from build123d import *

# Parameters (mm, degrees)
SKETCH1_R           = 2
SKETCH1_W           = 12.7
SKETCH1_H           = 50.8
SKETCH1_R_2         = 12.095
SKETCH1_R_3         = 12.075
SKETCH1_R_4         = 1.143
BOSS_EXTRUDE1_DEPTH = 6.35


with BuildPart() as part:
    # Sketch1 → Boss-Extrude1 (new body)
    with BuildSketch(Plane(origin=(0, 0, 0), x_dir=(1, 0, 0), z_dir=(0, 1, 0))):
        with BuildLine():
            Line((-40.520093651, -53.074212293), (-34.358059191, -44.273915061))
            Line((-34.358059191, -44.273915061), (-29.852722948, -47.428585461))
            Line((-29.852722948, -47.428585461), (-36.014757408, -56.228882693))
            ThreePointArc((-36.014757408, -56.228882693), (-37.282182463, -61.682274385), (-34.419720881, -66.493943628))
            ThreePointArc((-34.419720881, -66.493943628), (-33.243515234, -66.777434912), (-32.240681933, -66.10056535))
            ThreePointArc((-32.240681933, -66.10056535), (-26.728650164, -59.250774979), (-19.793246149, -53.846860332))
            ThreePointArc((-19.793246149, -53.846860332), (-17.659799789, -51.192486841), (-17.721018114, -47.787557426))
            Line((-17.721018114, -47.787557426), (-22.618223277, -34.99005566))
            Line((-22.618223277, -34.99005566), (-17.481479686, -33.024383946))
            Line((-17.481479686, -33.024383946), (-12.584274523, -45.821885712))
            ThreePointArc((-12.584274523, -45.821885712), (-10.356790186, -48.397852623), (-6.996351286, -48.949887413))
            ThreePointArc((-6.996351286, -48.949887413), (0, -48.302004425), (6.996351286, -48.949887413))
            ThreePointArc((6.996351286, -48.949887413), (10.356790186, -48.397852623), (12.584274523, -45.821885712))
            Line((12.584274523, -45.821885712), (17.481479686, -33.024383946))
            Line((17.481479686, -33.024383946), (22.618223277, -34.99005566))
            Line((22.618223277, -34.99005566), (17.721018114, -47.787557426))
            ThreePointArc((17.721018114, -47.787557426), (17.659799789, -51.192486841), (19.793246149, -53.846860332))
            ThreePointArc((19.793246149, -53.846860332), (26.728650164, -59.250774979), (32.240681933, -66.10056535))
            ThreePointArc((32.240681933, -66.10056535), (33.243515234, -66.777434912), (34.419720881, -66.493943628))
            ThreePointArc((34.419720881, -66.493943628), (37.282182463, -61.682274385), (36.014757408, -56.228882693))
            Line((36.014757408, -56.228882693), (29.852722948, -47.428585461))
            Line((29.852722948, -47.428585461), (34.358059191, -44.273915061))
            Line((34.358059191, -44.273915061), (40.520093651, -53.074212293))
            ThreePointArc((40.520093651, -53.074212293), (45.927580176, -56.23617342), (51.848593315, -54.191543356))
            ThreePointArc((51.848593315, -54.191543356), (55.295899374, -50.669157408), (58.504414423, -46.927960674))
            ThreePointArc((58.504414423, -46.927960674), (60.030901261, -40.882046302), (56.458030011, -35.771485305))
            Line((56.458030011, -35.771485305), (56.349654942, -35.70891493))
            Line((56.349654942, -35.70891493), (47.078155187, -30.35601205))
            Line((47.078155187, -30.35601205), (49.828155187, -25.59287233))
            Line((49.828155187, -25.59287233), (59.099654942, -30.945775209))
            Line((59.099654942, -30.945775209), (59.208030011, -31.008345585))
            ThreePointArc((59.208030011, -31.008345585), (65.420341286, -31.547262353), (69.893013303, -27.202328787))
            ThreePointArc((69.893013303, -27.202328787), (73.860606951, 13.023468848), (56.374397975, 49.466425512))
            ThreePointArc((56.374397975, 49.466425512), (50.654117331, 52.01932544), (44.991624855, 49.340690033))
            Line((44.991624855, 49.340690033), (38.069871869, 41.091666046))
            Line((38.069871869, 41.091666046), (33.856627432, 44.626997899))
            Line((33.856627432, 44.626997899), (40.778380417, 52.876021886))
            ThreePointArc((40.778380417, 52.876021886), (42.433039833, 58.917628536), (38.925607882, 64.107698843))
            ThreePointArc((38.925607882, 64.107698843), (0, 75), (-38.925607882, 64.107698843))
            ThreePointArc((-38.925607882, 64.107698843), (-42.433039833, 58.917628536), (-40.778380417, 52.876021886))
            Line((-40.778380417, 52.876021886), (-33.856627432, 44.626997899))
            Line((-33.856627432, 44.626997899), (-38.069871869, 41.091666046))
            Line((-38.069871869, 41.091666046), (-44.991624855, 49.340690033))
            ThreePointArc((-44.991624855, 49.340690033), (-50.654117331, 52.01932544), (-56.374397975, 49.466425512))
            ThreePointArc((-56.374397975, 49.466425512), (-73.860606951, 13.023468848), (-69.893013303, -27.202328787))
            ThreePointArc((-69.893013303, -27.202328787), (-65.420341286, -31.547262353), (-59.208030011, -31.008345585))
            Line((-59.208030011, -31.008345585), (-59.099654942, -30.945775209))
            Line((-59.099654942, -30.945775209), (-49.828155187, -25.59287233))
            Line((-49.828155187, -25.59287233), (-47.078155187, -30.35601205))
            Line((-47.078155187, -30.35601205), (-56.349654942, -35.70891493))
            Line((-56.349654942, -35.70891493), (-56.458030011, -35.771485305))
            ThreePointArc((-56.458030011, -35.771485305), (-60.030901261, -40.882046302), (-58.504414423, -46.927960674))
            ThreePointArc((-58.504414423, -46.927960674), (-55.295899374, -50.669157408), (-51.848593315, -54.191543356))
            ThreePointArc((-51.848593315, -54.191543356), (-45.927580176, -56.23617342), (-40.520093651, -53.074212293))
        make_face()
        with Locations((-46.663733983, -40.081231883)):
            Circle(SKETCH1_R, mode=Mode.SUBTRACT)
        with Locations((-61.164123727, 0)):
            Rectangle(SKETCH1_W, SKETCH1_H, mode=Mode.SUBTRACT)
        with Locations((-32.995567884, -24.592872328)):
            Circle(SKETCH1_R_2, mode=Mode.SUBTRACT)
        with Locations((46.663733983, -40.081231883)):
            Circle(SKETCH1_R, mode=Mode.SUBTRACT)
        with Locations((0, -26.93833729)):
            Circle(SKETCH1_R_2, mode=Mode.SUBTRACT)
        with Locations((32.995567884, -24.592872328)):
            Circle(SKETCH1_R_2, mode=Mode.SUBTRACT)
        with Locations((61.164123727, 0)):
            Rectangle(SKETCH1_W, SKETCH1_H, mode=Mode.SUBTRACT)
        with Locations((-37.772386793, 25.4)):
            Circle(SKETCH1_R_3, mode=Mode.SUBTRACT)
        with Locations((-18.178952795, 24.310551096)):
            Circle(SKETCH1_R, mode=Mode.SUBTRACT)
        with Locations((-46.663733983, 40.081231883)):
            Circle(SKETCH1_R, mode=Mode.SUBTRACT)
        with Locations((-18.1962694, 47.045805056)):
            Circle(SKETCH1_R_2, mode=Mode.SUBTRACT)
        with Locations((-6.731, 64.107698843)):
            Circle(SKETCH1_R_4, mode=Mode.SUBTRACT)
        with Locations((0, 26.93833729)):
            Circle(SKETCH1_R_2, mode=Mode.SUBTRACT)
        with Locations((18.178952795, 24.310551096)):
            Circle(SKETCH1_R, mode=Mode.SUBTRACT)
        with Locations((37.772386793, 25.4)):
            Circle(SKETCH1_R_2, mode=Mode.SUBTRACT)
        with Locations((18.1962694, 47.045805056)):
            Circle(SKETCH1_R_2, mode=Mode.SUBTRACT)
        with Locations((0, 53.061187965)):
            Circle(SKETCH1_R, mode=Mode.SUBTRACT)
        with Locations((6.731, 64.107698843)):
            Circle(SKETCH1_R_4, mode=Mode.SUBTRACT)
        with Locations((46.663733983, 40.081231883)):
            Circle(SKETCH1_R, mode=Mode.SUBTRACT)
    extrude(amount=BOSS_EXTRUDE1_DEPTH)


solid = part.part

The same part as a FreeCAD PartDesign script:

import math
import FreeCAD as App
import Part
import Sketcher
from FreeCAD import Vector
Q = App.Units.Quantity

doc = App.newDocument("Part")
body = doc.addObject("PartDesign::Body", "Body")

# Sketch on XZ plane
sketch1 = doc.addObject("Sketcher::SketchObject", "Sketch")
body.addObject(sketch1)
sketch1.AttachmentSupport = (doc.XZ_Plane, [""])
sketch1.MapMode = "FlatFace"
sketch1.addGeometry([
    Part.LineSegment(Vector(-40.52, 53.07, 0), Vector(-34.36, 44.27, 0)),  # 0
    Part.LineSegment(Vector(-34.36, 44.27, 0), Vector(-29.85, 47.43, 0)),  # 1
    Part.LineSegment(Vector(-29.85, 47.43, 0), Vector(-36.01, 56.23, 0)),  # 2
    Part.ArcOfCircle(Part.Circle(Vector(-29.87, 60.53, 0), Vector(0, 0, 1), 7.5), math.radians(127), math.radians(215)),  # 3
    Part.ArcOfCircle(Part.Circle(Vector(-33.51, 65.3, 0), Vector(0, 0, 1), 1.5), math.radians(32), math.radians(127)),  # 4
    Part.ArcOfCircle(Part.Circle(Vector(0, 86.4, 0), Vector(0, 0, 1), 38.1), math.radians(-148), math.radians(-121)),  # 5
    Part.ArcOfCircle(Part.Circle(Vector(-22.39, 49.57, 0), Vector(0, 0, 1), 5), math.radians(-21), math.radians(59)),  # 6
    Part.LineSegment(Vector(-17.72, 47.79, 0), Vector(-22.62, 34.99, 0)),  # 7
    Part.LineSegment(Vector(-22.62, 34.99, 0), Vector(-17.48, 33.02, 0)),  # 8
    Part.LineSegment(Vector(-17.48, 33.02, 0), Vector(-12.58, 45.82, 0)),  # 9
    Part.ArcOfCircle(Part.Circle(Vector(-7.91, 44.03, 0), Vector(0, 0, 1), 5), math.radians(79), math.radians(159)),  # 10
    Part.ArcOfCircle(Part.Circle(Vector(0, 86.4, 0), Vector(0, 0, 1), 38.1), math.radians(-101), math.radians(-79)),  # 11
    Part.ArcOfCircle(Part.Circle(Vector(7.91, 44.03, 0), Vector(0, 0, 1), 5), math.radians(21), math.radians(101)),  # 12
    Part.LineSegment(Vector(12.58, 45.82, 0), Vector(17.48, 33.02, 0)),  # 13
    Part.LineSegment(Vector(17.48, 33.02, 0), Vector(22.62, 34.99, 0)),  # 14
    Part.LineSegment(Vector(22.62, 34.99, 0), Vector(17.72, 47.79, 0)),  # 15
    Part.ArcOfCircle(Part.Circle(Vector(22.39, 49.57, 0), Vector(0, 0, 1), 5), math.radians(121), math.radians(201)),  # 16
    Part.ArcOfCircle(Part.Circle(Vector(0, 86.4, 0), Vector(0, 0, 1), 38.1), math.radians(-59), math.radians(-32)),  # 17
    Part.ArcOfCircle(Part.Circle(Vector(33.51, 65.3, 0), Vector(0, 0, 1), 1.5), math.radians(53), math.radians(148)),  # 18
    Part.ArcOfCircle(Part.Circle(Vector(29.87, 60.53, 0), Vector(0, 0, 1), 7.5), math.radians(-35), math.radians(53)),  # 19
    Part.LineSegment(Vector(36.01, 56.23, 0), Vector(29.85, 47.43, 0)),  # 20
    Part.LineSegment(Vector(29.85, 47.43, 0), Vector(34.36, 44.27, 0)),  # 21
    Part.LineSegment(Vector(34.36, 44.27, 0), Vector(40.52, 53.07, 0)),  # 22
    Part.ArcOfCircle(Part.Circle(Vector(46.66, 48.77, 0), Vector(0, 0, 1), 7.5), math.radians(46), math.radians(145)),  # 23
    Part.ArcOfCircle(Part.Circle(Vector(0, 0, 0), Vector(0, 0, 1), 75), math.radians(38.73), math.radians(46.27)),  # 24
    Part.ArcOfCircle(Part.Circle(Vector(52.65, 42.24, 0), Vector(0, 0, 1), 7.5), math.radians(-60), math.radians(39)),  # 25
    Part.LineSegment(Vector(56.46, 35.77, 0), Vector(56.35, 35.71, 0)),  # 26
    Part.LineSegment(Vector(56.35, 35.71, 0), Vector(47.08, 30.36, 0)),  # 27
    Part.LineSegment(Vector(47.08, 30.36, 0), Vector(49.83, 25.59, 0)),  # 28
    Part.LineSegment(Vector(49.83, 25.59, 0), Vector(59.1, 30.95, 0)),  # 29
    Part.LineSegment(Vector(59.1, 30.95, 0), Vector(59.21, 31.01, 0)),  # 30
    Part.ArcOfCircle(Part.Circle(Vector(62.9, 24.48, 0), Vector(0, 0, 1), 7.5), math.radians(21), math.radians(120)),  # 31
    Part.ArcOfCircle(Part.Circle(Vector(0, 0, 0), Vector(0, 0, 1), 75), math.radians(-41), math.radians(21)),  # 32
    Part.ArcOfCircle(Part.Circle(Vector(50.74, -44.52, 0), Vector(0, 0, 1), 7.5), math.radians(-140), math.radians(-41)),  # 33
    Part.LineSegment(Vector(44.99, -49.34, 0), Vector(38.07, -41.09, 0)),  # 34
    Part.LineSegment(Vector(38.07, -41.09, 0), Vector(33.86, -44.63, 0)),  # 35
    Part.LineSegment(Vector(33.86, -44.63, 0), Vector(40.78, -52.88, 0)),  # 36
    Part.ArcOfCircle(Part.Circle(Vector(35.03, -57.7, 0), Vector(0, 0, 1), 7.5), math.radians(-59), math.radians(40)),  # 37
    Part.ArcOfCircle(Part.Circle(Vector(0, 0, 0), Vector(0, 0, 1), 75), math.radians(-121), math.radians(-59)),  # 38
    Part.ArcOfCircle(Part.Circle(Vector(-35.03, -57.7, 0), Vector(0, 0, 1), 7.5), math.radians(140), math.radians(239)),  # 39
    Part.LineSegment(Vector(-40.78, -52.88, 0), Vector(-33.86, -44.63, 0)),  # 40
    Part.LineSegment(Vector(-33.86, -44.63, 0), Vector(-38.07, -41.09, 0)),  # 41
    Part.LineSegment(Vector(-38.07, -41.09, 0), Vector(-44.99, -49.34, 0)),  # 42
    Part.ArcOfCircle(Part.Circle(Vector(-50.74, -44.52, 0), Vector(0, 0, 1), 7.5), math.radians(-139), math.radians(-40)),  # 43
    Part.ArcOfCircle(Part.Circle(Vector(0, 0, 0), Vector(0, 0, 1), 75), math.radians(159), math.radians(221)),  # 44
    Part.ArcOfCircle(Part.Circle(Vector(-62.9, 24.48, 0), Vector(0, 0, 1), 7.5), math.radians(60), math.radians(159)),  # 45
    Part.LineSegment(Vector(-59.21, 31.01, 0), Vector(-59.1, 30.95, 0)),  # 46
    Part.LineSegment(Vector(-59.1, 30.95, 0), Vector(-49.83, 25.59, 0)),  # 47
    Part.LineSegment(Vector(-49.83, 25.59, 0), Vector(-47.08, 30.36, 0)),  # 48
    Part.LineSegment(Vector(-47.08, 30.36, 0), Vector(-56.35, 35.71, 0)),  # 49
    Part.LineSegment(Vector(-56.35, 35.71, 0), Vector(-56.46, 35.77, 0)),  # 50
    Part.ArcOfCircle(Part.Circle(Vector(-52.65, 42.24, 0), Vector(0, 0, 1), 7.5), math.radians(141), math.radians(240)),  # 51
    Part.ArcOfCircle(Part.Circle(Vector(0, 0, 0), Vector(0, 0, 1), 75), math.radians(133.73), math.radians(141.27)),  # 52
    Part.ArcOfCircle(Part.Circle(Vector(-46.66, 48.77, 0), Vector(0, 0, 1), 7.5), math.radians(35), math.radians(134)),  # 53
    Part.Circle(Vector(-46.66, 40.08, 0), Vector(0, 0, 1), 2),  # 54
    Part.Circle(Vector(-33, 24.59, 0), Vector(0, 0, 1), 12.1),  # 55
    Part.LineSegment(Vector(-54.81, 25.4, 0), Vector(-67.51, 25.4, 0)),  # 56
    Part.LineSegment(Vector(-67.51, 25.4, 0), Vector(-67.51, -25.4, 0)),  # 57
    Part.LineSegment(Vector(-67.51, -25.4, 0), Vector(-54.81, -25.4, 0)),  # 58
    Part.LineSegment(Vector(-54.81, -25.4, 0), Vector(-54.81, 25.4, 0)),  # 59
    Part.Circle(Vector(0, 26.94, 0), Vector(0, 0, 1), 12.1),  # 60
    Part.Circle(Vector(33, 24.59, 0), Vector(0, 0, 1), 12.1),  # 61
    Part.Circle(Vector(46.66, 40.08, 0), Vector(0, 0, 1), 2),  # 62
    Part.LineSegment(Vector(67.51, 25.4, 0), Vector(54.81, 25.4, 0)),  # 63
    Part.LineSegment(Vector(54.81, 25.4, 0), Vector(54.81, -25.4, 0)),  # 64
    Part.LineSegment(Vector(54.81, -25.4, 0), Vector(67.51, -25.4, 0)),  # 65
    Part.LineSegment(Vector(67.51, -25.4, 0), Vector(67.51, 25.4, 0)),  # 66
    Part.Circle(Vector(-37.77, -25.4, 0), Vector(0, 0, 1), 12.07),  # 67
    Part.Circle(Vector(-18.18, -24.31, 0), Vector(0, 0, 1), 2),  # 68
    Part.Circle(Vector(-46.66, -40.08, 0), Vector(0, 0, 1), 2),  # 69
    Part.Circle(Vector(-18.2, -47.05, 0), Vector(0, 0, 1), 12.1),  # 70
    Part.Circle(Vector(-6.73, -64.11, 0), Vector(0, 0, 1), 1.14),  # 71
    Part.Circle(Vector(18.18, -24.31, 0), Vector(0, 0, 1), 2),  # 72
    Part.Circle(Vector(0, -26.94, 0), Vector(0, 0, 1), 12.1),  # 73
    Part.Circle(Vector(37.77, -25.4, 0), Vector(0, 0, 1), 12.1),  # 74
    Part.Circle(Vector(18.2, -47.05, 0), Vector(0, 0, 1), 12.1),  # 75
    Part.Circle(Vector(0, -53.06, 0), Vector(0, 0, 1), 2),  # 76
    Part.Circle(Vector(6.73, -64.11, 0), Vector(0, 0, 1), 1.14),  # 77
    Part.Circle(Vector(46.66, -40.08, 0), Vector(0, 0, 1), 2),  # 78
], False)
sketch1.addConstraint([
    Sketcher.Constraint("Coincident", 0, 2, 1, 1),
    Sketcher.Constraint("Coincident", 1, 2, 2, 1),
    Sketcher.Constraint("Tangent", 2, 2, 3, 2),
    Sketcher.Constraint("Tangent", 3, 1, 4, 2),
    Sketcher.Constraint("Tangent", 4, 1, 5, 1),
    Sketcher.Constraint("Tangent", 5, 2, 6, 2),
    Sketcher.Constraint("Tangent", 6, 1, 7, 1),
    Sketcher.Constraint("Coincident", 7, 2, 8, 1),
    Sketcher.Constraint("Coincident", 8, 2, 9, 1),
    Sketcher.Constraint("Tangent", 9, 2, 10, 2),
    Sketcher.Constraint("Tangent", 10, 1, 11, 1),
    Sketcher.Constraint("Tangent", 11, 2, 12, 2),
    Sketcher.Constraint("Tangent", 12, 1, 13, 1),
    Sketcher.Constraint("Coincident", 13, 2, 14, 1),
    Sketcher.Constraint("Coincident", 14, 2, 15, 1),
    Sketcher.Constraint("Tangent", 15, 2, 16, 2),
    Sketcher.Constraint("Tangent", 16, 1, 17, 1),
    Sketcher.Constraint("Tangent", 17, 2, 18, 2),
    Sketcher.Constraint("Tangent", 18, 1, 19, 2),
    Sketcher.Constraint("Tangent", 19, 1, 20, 1),
    Sketcher.Constraint("Coincident", 20, 2, 21, 1),
    Sketcher.Constraint("Coincident", 21, 2, 22, 1),
    Sketcher.Constraint("Tangent", 22, 2, 23, 2),
    Sketcher.Constraint("Tangent", 23, 1, 24, 2),
    Sketcher.Constraint("Tangent", 24, 1, 25, 2),
    Sketcher.Constraint("Coincident", 25, 1, 26, 1),
    Sketcher.Constraint("Coincident", 26, 2, 27, 1),
    Sketcher.Constraint("Coincident", 27, 2, 28, 1),
    Sketcher.Constraint("Coincident", 28, 2, 29, 1),
    Sketcher.Constraint("Coincident", 29, 2, 30, 1),
    Sketcher.Constraint("Coincident", 30, 2, 31, 2),
    Sketcher.Constraint("Tangent", 31, 1, 32, 2),
    Sketcher.Constraint("Tangent", 32, 1, 33, 2),
    Sketcher.Constraint("Tangent", 33, 1, 34, 1),
    Sketcher.Constraint("Coincident", 34, 2, 35, 1),
    Sketcher.Constraint("Coincident", 35, 2, 36, 1),
    Sketcher.Constraint("Tangent", 36, 2, 37, 2),
    Sketcher.Constraint("Tangent", 37, 1, 38, 2),
    Sketcher.Constraint("Tangent", 38, 1, 39, 2),
    Sketcher.Constraint("Tangent", 39, 1, 40, 1),
    Sketcher.Constraint("Coincident", 40, 2, 41, 1),
    Sketcher.Constraint("Coincident", 41, 2, 42, 1),
    Sketcher.Constraint("Tangent", 42, 2, 43, 2),
    Sketcher.Constraint("Tangent", 43, 1, 44, 2),
    Sketcher.Constraint("Tangent", 44, 1, 45, 2),
    Sketcher.Constraint("Coincident", 45, 1, 46, 1),
    Sketcher.Constraint("Coincident", 46, 2, 47, 1),
    Sketcher.Constraint("Coincident", 47, 2, 48, 1),
    Sketcher.Constraint("Coincident", 48, 2, 49, 1),
    Sketcher.Constraint("Coincident", 49, 2, 50, 1),
    Sketcher.Constraint("Coincident", 50, 2, 51, 2),
    Sketcher.Constraint("Tangent", 51, 1, 52, 2),
    Sketcher.Constraint("Tangent", 52, 1, 53, 2),
    Sketcher.Constraint("Tangent", 53, 1, 0, 1),
    Sketcher.Constraint("Coincident", 56, 2, 57, 1),
    Sketcher.Constraint("Coincident", 57, 2, 58, 1),
    Sketcher.Constraint("Coincident", 58, 2, 59, 1),
    Sketcher.Constraint("Coincident", 59, 2, 56, 1),
    Sketcher.Constraint("Coincident", 63, 2, 64, 1),
    Sketcher.Constraint("Coincident", 64, 2, 65, 1),
    Sketcher.Constraint("Coincident", 65, 2, 66, 1),
    Sketcher.Constraint("Coincident", 66, 2, 63, 1),
    Sketcher.Constraint("Horizontal", 56),
    Sketcher.Constraint("Vertical", 57),
    Sketcher.Constraint("Horizontal", 58),
    Sketcher.Constraint("Vertical", 59),
    Sketcher.Constraint("Horizontal", 63),
    Sketcher.Constraint("Vertical", 64),
    Sketcher.Constraint("Horizontal", 65),
    Sketcher.Constraint("Vertical", 66),
    Sketcher.Constraint("Coincident", 24, 3, -1, 1),
    Sketcher.Constraint("Coincident", 32, 3, -1, 1),
    Sketcher.Constraint("Coincident", 38, 3, -1, 1),
    Sketcher.Constraint("Coincident", 44, 3, -1, 1),
    Sketcher.Constraint("Coincident", 52, 3, -1, 1),
    Sketcher.Constraint("Coincident", 11, 3, 5, 3),
    Sketcher.Constraint("Coincident", 17, 3, 5, 3),
    Sketcher.Constraint("Equal", 6, 10),
    Sketcher.Constraint("Equal", 5, 11),
    Sketcher.Constraint("Equal", 10, 12),
    Sketcher.Constraint("Equal", 12, 16),
    Sketcher.Constraint("Equal", 11, 17),
    Sketcher.Constraint("Equal", 4, 18),
    Sketcher.Constraint("Equal", 3, 19),
    Sketcher.Constraint("Equal", 19, 23),
    Sketcher.Constraint("Equal", 23, 25),
    Sketcher.Constraint("Equal", 25, 31),
    Sketcher.Constraint("Equal", 24, 32),
    Sketcher.Constraint("Equal", 31, 33),
    Sketcher.Constraint("Equal", 33, 37),
    Sketcher.Constraint("Equal", 32, 38),
    Sketcher.Constraint("Equal", 37, 39),
    Sketcher.Constraint("Equal", 39, 43),
    Sketcher.Constraint("Equal", 38, 44),
    Sketcher.Constraint("Equal", 43, 45),
    Sketcher.Constraint("Equal", 45, 51),
    Sketcher.Constraint("Equal", 44, 52),
    Sketcher.Constraint("Equal", 51, 53),
    Sketcher.Constraint("Equal", 55, 60),
    Sketcher.Constraint("Equal", 60, 61),
    Sketcher.Constraint("Equal", 54, 62),
    Sketcher.Constraint("Equal", 62, 68),
    Sketcher.Constraint("Equal", 68, 69),
    Sketcher.Constraint("Equal", 61, 70),
    Sketcher.Constraint("Equal", 69, 72),
    Sketcher.Constraint("Equal", 70, 73),
    Sketcher.Constraint("Equal", 73, 74),
    Sketcher.Constraint("Equal", 74, 75),
    Sketcher.Constraint("Equal", 72, 76),
    Sketcher.Constraint("Equal", 71, 77),
    Sketcher.Constraint("Equal", 76, 78),
    Sketcher.Constraint("Symmetric", 62, 3, 69, 3, -1, 1),
    Sketcher.Constraint("Symmetric", 60, 3, 73, 3, -1, 1),
    Sketcher.Constraint("Symmetric", 54, 3, 78, 3, -1, 1),
    Sketcher.Constraint("Symmetric", 58, 2, 63, 2, -1, 1),
    Sketcher.Constraint("Symmetric", 56, 2, 65, 2, -1, 1),
    Sketcher.Constraint("Symmetric", 10, 3, 12, 3, -2),
    Sketcher.Constraint("Symmetric", 3, 3, 19, 3, -2),
    Sketcher.Constraint("Symmetric", 55, 3, 61, 3, -2),
    Sketcher.Constraint("Symmetric", 54, 3, 62, 3, -2),
    Sketcher.Constraint("Symmetric", 68, 3, 72, 3, -2),
    Sketcher.Constraint("Symmetric", 67, 3, 74, 3, -2),
    Sketcher.Constraint("Symmetric", 70, 3, 75, 3, -2),
    Sketcher.Constraint("Symmetric", 71, 3, 77, 3, -2),
    Sketcher.Constraint("Symmetric", 8, 2, 13, 2, -2),
    Sketcher.Constraint("Symmetric", 7, 2, 14, 2, -2),
    Sketcher.Constraint("Symmetric", 1, 2, 20, 2, -2),
    Sketcher.Constraint("Symmetric", 0, 2, 21, 2, -2),
    Sketcher.Constraint("Symmetric", 36, 2, 39, 1, -2),
    Sketcher.Constraint("Symmetric", 34, 2, 41, 2, -2),
    Sketcher.Constraint("Symmetric", 30, 2, 45, 1, -2),
    Sketcher.Constraint("Symmetric", 29, 2, 46, 2, -2),
    Sketcher.Constraint("Symmetric", 28, 2, 47, 2, -2),
    Sketcher.Constraint("Symmetric", 27, 2, 48, 2, -2),
    Sketcher.Constraint("Symmetric", 26, 2, 49, 2, -2),
    Sketcher.Constraint("Symmetric", 25, 1, 50, 2, -2),
    Sketcher.Constraint("PointOnObject", 60, 3, -2),
    Sketcher.Constraint("PointOnObject", 76, 3, -2),
    Sketcher.Constraint("Perpendicular", 0, 1),
    Sketcher.Constraint("Perpendicular", 1, 2),
    Sketcher.Constraint("Perpendicular", 7, 8),
    Sketcher.Constraint("Perpendicular", 8, 9),
    Sketcher.Constraint("Perpendicular", 14, 15),
    Sketcher.Constraint("Perpendicular", 21, 22),
    Sketcher.Constraint("Parallel", 26, 27),
    Sketcher.Constraint("Perpendicular", 27, 28),
    Sketcher.Constraint("Perpendicular", 28, 29),
    Sketcher.Constraint("Parallel", 29, 30),
    Sketcher.Constraint("Perpendicular", 34, 35),
    Sketcher.Constraint("Perpendicular", 35, 36),
    Sketcher.Constraint("Perpendicular", 40, 41),
    Sketcher.Constraint("Perpendicular", 41, 42),
    Sketcher.Constraint("Horizontal", 77, 3, 37, 1),
    Sketcher.Constraint("Horizontal", 74, 3, 57, 2),
    Sketcher.Constraint("Horizontal", 59, 2, 63, 2),
    Sketcher.Constraint("Vertical", 53, 3, 54, 3),
    Sketcher.Constraint("Equal", 0, 2),
    Sketcher.Constraint("Equal", 1, 8),
    Sketcher.Constraint("Equal", 7, 9),
    Sketcher.Constraint("Equal", 21, 28),
    Sketcher.Constraint("Equal", 27, 29),
    Sketcher.Constraint("Equal", 26, 30),
    Sketcher.Constraint("Equal", 28, 35),
    Sketcher.Constraint("Equal", 34, 36),
    Sketcher.Constraint("Diameter", 54, 4.0),
    Sketcher.Constraint("Radius", 6, 5.0),
    Sketcher.Constraint("Radius", 24, 75.0),
    Sketcher.Constraint("Radius", 3, 7.5),
    Sketcher.Constraint("Radius", 4, 1.5),
    Sketcher.Constraint("Radius", 5, 38.1),
    Sketcher.Constraint("Diameter", 55, 24.19),
    Sketcher.Constraint("Diameter", 67, 24.15),
    Sketcher.Constraint("Angle", 0, Q("-55 deg")),
    Sketcher.Constraint("Angle", 26, Q("-150 deg")),
    Sketcher.Constraint("Angle", 34, Q("130 deg")),
    Sketcher.Constraint("Diameter", 71, 2.286),
    Sketcher.Constraint("DistanceX", 56, 2, 56, 1, 12.7),
    Sketcher.Constraint("DistanceY", 57, 2, 57, 1, 50.8),
    Sketcher.Constraint("Distance", 1, 5.5),
    Sketcher.Constraint("DistanceX", 4, 3, -1, 1, 33.51),
    Sketcher.Constraint("DistanceX", 71, 3, -1, 1, 6.731),
    Sketcher.Constraint("Distance", 0, 10.743179),
    Sketcher.Constraint("Distance", 26, 0.125141),
    Sketcher.Constraint("DistanceY", -1, 1, 6, 3, 49.574532),
    Sketcher.Constraint("DistanceY", -1, 1, 10, 3, 44.034911),
    Sketcher.Constraint("DistanceX", -1, 1, 31, 3, 62.903712),
    Sketcher.Constraint("DistanceY", -1, 1, 54, 3, 40.081232),
    Sketcher.Constraint("DistanceY", 68, 3, -1, 1, 24.310551),
    Sketcher.Constraint("DistanceX", 70, 3, -1, 1, 18.196269),
    Sketcher.Constraint("DistanceX", 8, 2, -1, 1, 17.48148),
    Sketcher.Constraint("DistanceX", -1, 1, 25, 1, 56.45803),
    Sketcher.Constraint("DistanceX", -1, 1, 34, 2, 38.069872),
    Sketcher.Constraint("Distance", 27, 10.705806),
    Sketcher.Constraint("DistanceX", 55, 3, -1, 1, 32.995568),
    Sketcher.Constraint("DistanceY", -1, 1, 55, 3, 24.592872),
    Sketcher.Constraint("DistanceY", -1, 1, 60, 3, 26.938337),
    Sketcher.Constraint("DistanceX", 67, 3, -1, 1, 37.772387),
    Sketcher.Constraint("DistanceX", 68, 3, -1, 1, 18.178953),
    Sketcher.Constraint("DistanceY", 70, 3, -1, 1, 47.045805),
    Sketcher.Constraint("DistanceY", 76, 3, -1, 1, 53.061188),
    Sketcher.Constraint("DistanceX", 56, 2, -1, 1, 67.514124),
])
pad1 = doc.addObject("PartDesign::Pad", "Pad")
body.addObject(pad1)
pad1.Profile = sketch1
pad1.Length = 6.35
pad1.Reversed = True

doc.recompute()
